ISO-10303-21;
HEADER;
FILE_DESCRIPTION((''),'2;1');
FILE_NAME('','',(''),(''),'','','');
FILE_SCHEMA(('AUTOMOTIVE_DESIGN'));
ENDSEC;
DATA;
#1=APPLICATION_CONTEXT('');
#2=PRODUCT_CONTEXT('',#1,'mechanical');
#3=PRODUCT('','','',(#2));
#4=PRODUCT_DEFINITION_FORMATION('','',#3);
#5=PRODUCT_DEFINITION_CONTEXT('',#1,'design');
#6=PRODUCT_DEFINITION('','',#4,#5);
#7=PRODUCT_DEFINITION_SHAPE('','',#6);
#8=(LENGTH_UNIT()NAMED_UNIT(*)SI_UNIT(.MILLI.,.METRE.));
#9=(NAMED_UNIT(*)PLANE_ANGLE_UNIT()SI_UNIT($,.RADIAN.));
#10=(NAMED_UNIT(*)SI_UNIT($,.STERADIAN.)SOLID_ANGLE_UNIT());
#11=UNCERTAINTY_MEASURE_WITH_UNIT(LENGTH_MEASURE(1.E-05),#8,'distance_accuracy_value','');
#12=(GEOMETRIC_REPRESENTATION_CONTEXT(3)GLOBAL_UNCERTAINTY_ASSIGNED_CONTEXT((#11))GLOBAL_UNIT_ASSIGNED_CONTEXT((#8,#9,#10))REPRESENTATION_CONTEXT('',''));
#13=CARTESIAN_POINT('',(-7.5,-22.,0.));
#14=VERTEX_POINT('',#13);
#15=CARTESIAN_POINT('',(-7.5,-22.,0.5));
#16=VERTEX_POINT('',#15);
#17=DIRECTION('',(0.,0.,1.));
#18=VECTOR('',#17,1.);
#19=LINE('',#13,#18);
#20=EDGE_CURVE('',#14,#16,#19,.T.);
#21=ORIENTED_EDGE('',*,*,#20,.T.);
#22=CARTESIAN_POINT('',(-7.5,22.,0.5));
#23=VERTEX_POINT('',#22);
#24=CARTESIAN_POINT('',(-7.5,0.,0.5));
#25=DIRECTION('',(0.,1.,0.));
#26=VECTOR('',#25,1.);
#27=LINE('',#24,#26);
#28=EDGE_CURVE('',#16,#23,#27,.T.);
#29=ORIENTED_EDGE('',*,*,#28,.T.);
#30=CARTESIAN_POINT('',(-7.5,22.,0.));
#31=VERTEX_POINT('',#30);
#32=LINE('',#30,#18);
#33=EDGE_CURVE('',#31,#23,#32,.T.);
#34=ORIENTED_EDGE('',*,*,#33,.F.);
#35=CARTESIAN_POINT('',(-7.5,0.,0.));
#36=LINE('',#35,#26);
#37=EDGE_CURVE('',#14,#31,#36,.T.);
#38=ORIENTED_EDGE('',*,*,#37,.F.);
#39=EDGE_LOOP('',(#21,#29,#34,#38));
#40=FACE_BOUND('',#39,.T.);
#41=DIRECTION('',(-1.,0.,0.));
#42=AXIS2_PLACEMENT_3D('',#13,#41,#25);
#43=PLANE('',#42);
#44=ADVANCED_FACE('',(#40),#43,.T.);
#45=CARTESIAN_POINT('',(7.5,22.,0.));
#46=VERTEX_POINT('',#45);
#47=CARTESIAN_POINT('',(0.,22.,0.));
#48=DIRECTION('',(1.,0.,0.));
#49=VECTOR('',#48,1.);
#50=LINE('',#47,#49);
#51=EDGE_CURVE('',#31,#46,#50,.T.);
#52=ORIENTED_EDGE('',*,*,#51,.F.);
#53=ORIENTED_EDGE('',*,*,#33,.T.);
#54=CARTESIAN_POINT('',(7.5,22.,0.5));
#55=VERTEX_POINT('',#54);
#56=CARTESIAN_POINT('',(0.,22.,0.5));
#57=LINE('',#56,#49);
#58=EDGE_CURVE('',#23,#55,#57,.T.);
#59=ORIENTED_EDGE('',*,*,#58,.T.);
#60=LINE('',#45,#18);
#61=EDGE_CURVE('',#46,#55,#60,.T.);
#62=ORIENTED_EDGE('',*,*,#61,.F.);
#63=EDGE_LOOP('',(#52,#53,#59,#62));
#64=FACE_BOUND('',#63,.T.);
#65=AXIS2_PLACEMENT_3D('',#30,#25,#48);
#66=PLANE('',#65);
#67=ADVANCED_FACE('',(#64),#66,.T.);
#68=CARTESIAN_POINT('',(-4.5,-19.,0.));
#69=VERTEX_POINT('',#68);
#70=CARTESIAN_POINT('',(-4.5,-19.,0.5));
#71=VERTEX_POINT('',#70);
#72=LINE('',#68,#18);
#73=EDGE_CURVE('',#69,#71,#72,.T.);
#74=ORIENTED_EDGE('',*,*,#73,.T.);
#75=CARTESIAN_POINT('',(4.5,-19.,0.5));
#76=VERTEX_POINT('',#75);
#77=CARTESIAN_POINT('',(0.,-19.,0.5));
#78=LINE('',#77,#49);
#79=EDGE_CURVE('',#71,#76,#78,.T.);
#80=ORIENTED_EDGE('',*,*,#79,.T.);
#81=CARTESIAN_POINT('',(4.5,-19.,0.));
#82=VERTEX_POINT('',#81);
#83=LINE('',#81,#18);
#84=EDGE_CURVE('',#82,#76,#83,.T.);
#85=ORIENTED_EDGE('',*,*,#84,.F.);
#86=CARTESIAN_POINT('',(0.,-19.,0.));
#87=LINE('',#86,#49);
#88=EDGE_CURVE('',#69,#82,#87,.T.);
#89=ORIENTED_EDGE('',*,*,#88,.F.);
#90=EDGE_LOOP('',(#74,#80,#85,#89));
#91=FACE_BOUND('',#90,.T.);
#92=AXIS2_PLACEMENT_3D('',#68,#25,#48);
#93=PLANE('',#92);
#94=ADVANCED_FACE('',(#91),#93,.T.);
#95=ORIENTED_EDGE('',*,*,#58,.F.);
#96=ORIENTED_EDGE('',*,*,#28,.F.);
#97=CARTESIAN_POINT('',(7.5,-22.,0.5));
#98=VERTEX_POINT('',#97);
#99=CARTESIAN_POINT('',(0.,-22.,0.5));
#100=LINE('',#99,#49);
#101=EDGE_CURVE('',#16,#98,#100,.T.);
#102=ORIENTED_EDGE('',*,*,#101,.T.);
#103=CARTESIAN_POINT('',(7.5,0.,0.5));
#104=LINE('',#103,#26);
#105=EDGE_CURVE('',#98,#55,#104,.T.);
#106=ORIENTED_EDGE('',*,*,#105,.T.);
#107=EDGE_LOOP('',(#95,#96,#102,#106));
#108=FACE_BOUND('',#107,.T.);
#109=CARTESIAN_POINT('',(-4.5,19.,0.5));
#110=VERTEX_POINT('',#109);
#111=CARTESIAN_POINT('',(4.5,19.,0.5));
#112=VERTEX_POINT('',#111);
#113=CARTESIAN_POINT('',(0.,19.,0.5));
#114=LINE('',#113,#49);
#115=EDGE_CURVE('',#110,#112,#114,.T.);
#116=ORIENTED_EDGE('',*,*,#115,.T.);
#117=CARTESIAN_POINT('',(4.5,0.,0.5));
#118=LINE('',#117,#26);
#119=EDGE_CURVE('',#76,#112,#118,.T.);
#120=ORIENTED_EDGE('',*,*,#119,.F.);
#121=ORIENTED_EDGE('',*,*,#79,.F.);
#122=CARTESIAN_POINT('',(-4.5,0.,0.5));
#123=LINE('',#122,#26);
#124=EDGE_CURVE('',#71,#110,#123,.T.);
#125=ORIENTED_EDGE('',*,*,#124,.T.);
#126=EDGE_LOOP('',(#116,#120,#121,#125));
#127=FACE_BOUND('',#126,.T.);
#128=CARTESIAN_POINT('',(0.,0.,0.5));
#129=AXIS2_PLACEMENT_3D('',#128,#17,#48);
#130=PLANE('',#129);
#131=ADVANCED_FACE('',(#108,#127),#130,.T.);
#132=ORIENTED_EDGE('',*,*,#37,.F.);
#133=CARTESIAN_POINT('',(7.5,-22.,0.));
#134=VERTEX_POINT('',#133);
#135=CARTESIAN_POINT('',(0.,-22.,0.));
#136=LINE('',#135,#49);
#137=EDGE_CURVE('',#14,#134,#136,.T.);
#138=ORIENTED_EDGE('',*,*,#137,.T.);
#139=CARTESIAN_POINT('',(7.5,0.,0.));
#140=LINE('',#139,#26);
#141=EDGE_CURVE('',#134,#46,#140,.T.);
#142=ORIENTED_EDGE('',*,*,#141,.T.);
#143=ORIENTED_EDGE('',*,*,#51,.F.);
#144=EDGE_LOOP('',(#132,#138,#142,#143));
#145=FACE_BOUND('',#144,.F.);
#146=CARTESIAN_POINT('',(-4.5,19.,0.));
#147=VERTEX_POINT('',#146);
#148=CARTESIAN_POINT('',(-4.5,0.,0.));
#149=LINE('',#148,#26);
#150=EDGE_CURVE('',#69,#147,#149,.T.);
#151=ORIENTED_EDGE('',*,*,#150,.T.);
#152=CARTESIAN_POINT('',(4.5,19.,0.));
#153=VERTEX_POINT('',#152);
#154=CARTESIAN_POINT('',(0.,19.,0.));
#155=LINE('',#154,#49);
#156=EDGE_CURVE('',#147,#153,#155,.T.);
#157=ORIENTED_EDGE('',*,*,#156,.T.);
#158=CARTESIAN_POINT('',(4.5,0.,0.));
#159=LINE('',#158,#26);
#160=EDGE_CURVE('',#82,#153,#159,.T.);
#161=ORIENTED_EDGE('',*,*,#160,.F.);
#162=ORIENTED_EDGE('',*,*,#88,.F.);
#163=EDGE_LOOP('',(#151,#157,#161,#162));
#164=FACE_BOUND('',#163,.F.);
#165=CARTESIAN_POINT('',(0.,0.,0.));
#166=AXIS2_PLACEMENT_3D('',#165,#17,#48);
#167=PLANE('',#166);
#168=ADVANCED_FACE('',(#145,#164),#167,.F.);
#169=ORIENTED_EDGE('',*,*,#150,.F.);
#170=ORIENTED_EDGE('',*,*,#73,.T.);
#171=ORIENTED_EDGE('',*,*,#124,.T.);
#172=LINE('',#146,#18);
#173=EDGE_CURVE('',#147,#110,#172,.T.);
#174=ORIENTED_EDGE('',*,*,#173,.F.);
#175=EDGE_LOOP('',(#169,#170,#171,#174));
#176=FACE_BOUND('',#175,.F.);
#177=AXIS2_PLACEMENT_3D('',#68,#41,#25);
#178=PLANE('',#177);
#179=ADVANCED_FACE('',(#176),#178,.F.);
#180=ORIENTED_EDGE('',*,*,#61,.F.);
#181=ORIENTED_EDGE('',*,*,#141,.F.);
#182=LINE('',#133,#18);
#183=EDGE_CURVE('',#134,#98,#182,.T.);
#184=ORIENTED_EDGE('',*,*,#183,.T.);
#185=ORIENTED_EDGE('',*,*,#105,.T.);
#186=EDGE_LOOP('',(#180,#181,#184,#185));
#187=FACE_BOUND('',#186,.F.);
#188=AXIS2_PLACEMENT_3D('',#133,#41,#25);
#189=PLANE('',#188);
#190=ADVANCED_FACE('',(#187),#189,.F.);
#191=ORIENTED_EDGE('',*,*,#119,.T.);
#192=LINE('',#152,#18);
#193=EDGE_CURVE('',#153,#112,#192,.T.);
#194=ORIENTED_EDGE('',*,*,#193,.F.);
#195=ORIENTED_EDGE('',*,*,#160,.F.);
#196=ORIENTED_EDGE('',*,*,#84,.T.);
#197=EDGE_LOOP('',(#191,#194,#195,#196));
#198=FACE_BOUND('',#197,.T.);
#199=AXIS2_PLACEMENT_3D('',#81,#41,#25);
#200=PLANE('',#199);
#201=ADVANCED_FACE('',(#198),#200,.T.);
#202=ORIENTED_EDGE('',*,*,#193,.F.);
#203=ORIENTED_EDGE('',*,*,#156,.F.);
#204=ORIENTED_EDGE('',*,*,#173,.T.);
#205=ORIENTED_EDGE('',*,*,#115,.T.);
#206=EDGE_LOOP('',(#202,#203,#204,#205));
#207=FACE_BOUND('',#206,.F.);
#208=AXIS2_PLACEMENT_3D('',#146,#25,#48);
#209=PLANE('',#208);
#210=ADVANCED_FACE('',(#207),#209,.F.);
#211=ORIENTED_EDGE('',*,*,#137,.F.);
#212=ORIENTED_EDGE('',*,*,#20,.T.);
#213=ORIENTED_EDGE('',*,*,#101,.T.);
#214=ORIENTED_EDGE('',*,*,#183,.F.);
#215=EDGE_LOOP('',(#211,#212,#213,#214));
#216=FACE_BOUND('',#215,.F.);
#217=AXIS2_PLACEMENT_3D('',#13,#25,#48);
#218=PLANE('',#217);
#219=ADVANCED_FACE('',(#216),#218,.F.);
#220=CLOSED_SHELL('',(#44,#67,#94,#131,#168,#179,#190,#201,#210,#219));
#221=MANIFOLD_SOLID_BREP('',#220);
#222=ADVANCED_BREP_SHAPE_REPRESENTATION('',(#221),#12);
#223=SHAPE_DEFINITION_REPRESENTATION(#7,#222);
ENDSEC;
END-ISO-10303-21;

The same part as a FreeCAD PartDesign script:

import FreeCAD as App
import Part
import Sketcher
from FreeCAD import Vector
Q = App.Units.Quantity

doc = App.newDocument("Part")
params = doc.addObject("Spreadsheet::Sheet", "Params")
for row, (alias, value) in enumerate([
    ("sketch1_width", "15 mm"),
    ("sketch1_width2", "9 mm"),
    ("sketch1_height", "44 mm"),
    ("sketch1_height2", "38 mm"),
    ("pad1_length", "0.5 mm"),
    ("sketch2_width", "9 mm"),
    ("sketch2_height", "38 mm"),
    ("pocket1_length", "25 mm"),
], start=1):
    params.set(f"A{row}", alias)
    params.set(f"B{row}", "=" + value)
    params.setAlias(f"B{row}", alias)

body = doc.addObject("PartDesign::Body", "Body")

sketch1 = body.newObject("Sketcher::SketchObject", "Sketch")
sketch1.AttachmentSupport = (doc.getObject("XY_Plane"), [""])
sketch1.MapMode = "FlatFace"
sketch1.addGeometry([
    Part.LineSegment(Vector(-8, 22, 0), Vector(-8, -22, 0)),
    Part.LineSegment(Vector(-8, -22, 0), Vector(8, -22, 0)),
    Part.LineSegment(Vector(8, -22, 0), Vector(8, 22, 0)),
    Part.LineSegment(Vector(8, 22, 0), Vector(-8, 22, 0)),
    Part.LineSegment(Vector(4, -19, 0), Vector(-4, -19, 0)),
    Part.LineSegment(Vector(-4, -19, 0), Vector(-4, 19, 0)),
    Part.LineSegment(Vector(-4, 19, 0), Vector(4, 19, 0)),
    Part.LineSegment(Vector(4, 19, 0), Vector(4, -19, 0)),
], False)
sketch1.addConstraint([
    Sketcher.Constraint("Coincident", 0, 2, 1, 1),
    Sketcher.Constraint("Coincident", 1, 2, 2, 1),
    Sketcher.Constraint("Coincident", 2, 2, 3, 1),
    Sketcher.Constraint("Coincident", 3, 2, 0, 1),
    Sketcher.Constraint("Coincident", 4, 2, 5, 1),
    Sketcher.Constraint("Coincident", 5, 2, 6, 1),
    Sketcher.Constraint("Coincident", 6, 2, 7, 1),
    Sketcher.Constraint("Coincident", 7, 2, 4, 1),
    Sketcher.Constraint("Vertical", 0),
    Sketcher.Constraint("Horizontal", 1),
    Sketcher.Constraint("Vertical", 2),
    Sketcher.Constraint("Horizontal", 3),
    Sketcher.Constraint("Horizontal", 4),
    Sketcher.Constraint("Vertical", 5),
    Sketcher.Constraint("Horizontal", 6),
    Sketcher.Constraint("Vertical", 7),
    Sketcher.Constraint("Symmetric", 0, 2, 2, 2, -1, 1),
    Sketcher.Constraint("Symmetric", 4, 2, 6, 2, -1, 1),
    Sketcher.Constraint("DistanceX", 1, 1, 1, 2, Q("15 mm")),
    Sketcher.Constraint("DistanceX", 4, 2, 4, 1, Q("9 mm")),
    Sketcher.Constraint("DistanceY", 0, 2, 0, 1, Q("44 mm")),
    Sketcher.Constraint("DistanceY", 5, 1, 5, 2, Q("38 mm")),
])
sketch1.setExpression("Constraints[18]", "Params.sketch1_width")
sketch1.setExpression("Constraints[19]", "Params.sketch1_width2")
sketch1.setExpression("Constraints[20]", "Params.sketch1_height")
sketch1.setExpression("Constraints[21]", "Params.sketch1_height2")
pad1 = body.newObject("PartDesign::Pad", "Pad")
pad1.Profile = sketch1
pad1.setExpression("Length", "Params.pad1_length")

sketch2 = body.newObject("Sketcher::SketchObject", "Sketch001")
sketch2.AttachmentSupport = (doc.getObject("XY_Plane"), [""])
sketch2.MapMode = "FlatFace"
sketch2.addGeometry([
    Part.LineSegment(Vector(-4, 19, 0), Vector(-4, -19, 0)),
    Part.LineSegment(Vector(-4, -19, 0), Vector(4, -19, 0)),
    Part.LineSegment(Vector(4, -19, 0), Vector(4, 19, 0)),
    Part.LineSegment(Vector(4, 19, 0), Vector(-4, 19, 0)),
], False)
sketch2.addConstraint([
    Sketcher.Constraint("Coincident", 0, 2, 1, 1),
    Sketcher.Constraint("Coincident", 1, 2, 2, 1),
    Sketcher.Constraint("Coincident", 2, 2, 3, 1),
    Sketcher.Constraint("Coincident", 3, 2, 0, 1),
    Sketcher.Constraint("Vertical", 0),
    Sketcher.Constraint("Horizontal", 1),
    Sketcher.Constraint("Vertical", 2),
    Sketcher.Constraint("Horizontal", 3),
    Sketcher.Constraint("Symmetric", 0, 2, 2, 2, -1, 1),
    Sketcher.Constraint("DistanceX", 1, 1, 1, 2, Q("9 mm")),
    Sketcher.Constraint("DistanceY", 0, 2, 0, 1, Q("38 mm")),
])
sketch2.setExpression("Constraints[9]", "Params.sketch2_width")
sketch2.setExpression("Constraints[10]", "Params.sketch2_height")
pocket1 = body.newObject("PartDesign::Pocket", "Pocket")
pocket1.Profile = sketch2
pocket1.setExpression("Length", "Params.pocket1_length")
pocket1.Reversed = True

doc.recompute()
